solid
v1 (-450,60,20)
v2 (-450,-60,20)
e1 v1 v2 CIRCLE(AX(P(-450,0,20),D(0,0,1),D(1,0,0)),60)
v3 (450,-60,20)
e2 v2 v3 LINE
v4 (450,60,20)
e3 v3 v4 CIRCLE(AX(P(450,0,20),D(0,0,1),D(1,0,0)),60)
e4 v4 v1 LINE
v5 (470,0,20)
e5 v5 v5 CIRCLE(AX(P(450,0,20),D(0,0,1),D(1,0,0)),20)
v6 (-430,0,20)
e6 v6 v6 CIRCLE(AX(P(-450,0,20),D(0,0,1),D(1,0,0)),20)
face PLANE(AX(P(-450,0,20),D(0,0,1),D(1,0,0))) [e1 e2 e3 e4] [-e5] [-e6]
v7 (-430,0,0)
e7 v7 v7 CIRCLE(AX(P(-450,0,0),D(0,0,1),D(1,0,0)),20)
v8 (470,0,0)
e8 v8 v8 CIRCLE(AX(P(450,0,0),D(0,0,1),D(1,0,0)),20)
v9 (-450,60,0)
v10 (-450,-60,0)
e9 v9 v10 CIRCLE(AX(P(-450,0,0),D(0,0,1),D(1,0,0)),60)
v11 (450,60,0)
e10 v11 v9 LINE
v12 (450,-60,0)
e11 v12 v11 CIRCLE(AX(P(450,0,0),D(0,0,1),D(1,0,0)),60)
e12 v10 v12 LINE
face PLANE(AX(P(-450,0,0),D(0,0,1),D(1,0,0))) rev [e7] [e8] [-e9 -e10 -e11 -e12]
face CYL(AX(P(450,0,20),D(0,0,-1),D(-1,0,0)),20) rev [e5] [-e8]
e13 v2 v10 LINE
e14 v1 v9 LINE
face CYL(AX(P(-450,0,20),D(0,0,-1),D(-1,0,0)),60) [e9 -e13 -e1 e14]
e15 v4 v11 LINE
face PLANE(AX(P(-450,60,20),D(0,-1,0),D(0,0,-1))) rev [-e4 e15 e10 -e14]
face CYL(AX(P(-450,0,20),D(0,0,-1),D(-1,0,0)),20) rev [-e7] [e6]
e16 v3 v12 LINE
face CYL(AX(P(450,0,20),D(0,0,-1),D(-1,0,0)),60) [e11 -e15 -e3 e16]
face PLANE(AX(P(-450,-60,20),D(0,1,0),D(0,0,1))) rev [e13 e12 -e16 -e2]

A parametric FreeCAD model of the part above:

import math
import FreeCAD as App
import Part
import Sketcher

V = App.Vector

doc = App.newDocument("Part")
body = doc.addObject("PartDesign::Body", "Body")

# Sketch on XY plane
sketch1 = doc.addObject("Sketcher::SketchObject", "Sketch")
body.addObject(sketch1)
sketch1.AttachmentSupport = (doc.XY_Plane, [""])
sketch1.MapMode = "FlatFace"
sketch1.addGeometry(Part.LineSegment(V(450, 60, 0), V(-450, 60, 0)), False)
sketch1.addGeometry(Part.ArcOfCircle(Part.Circle(V(-450, 0, 0), V(0, 0, 1), 60), math.radians(90), math.radians(270)), False)
sketch1.addGeometry(Part.LineSegment(V(-450, -60, 0), V(450, -60, 0)), False)
sketch1.addGeometry(Part.ArcOfCircle(Part.Circle(V(450, 0, 0), V(0, 0, 1), 60), math.radians(-90), math.radians(90)), False)
sketch1.addGeometry(Part.Circle(V(450, 0, 0), V(0, 0, 1), 20), False)
sketch1.addGeometry(Part.Circle(V(-450, 0, 0), V(0, 0, 1), 20), False)
sketch1.addConstraint(Sketcher.Constraint("Tangent", 0, 2, 1, 1))
sketch1.addConstraint(Sketcher.Constraint("Tangent", 1, 2, 2, 1))
sketch1.addConstraint(Sketcher.Constraint("Tangent", 2, 2, 3, 1))
sketch1.addConstraint(Sketcher.Constraint("Tangent", 3, 2, 0, 1))
sketch1.addConstraint(Sketcher.Constraint("Horizontal", 0))
sketch1.addConstraint(Sketcher.Constraint("Horizontal", 2))
sketch1.addConstraint(Sketcher.Constraint("Coincident", 4, 3, 3, 3))
sketch1.addConstraint(Sketcher.Constraint("Coincident", 5, 3, 1, 3))
sketch1.addConstraint(Sketcher.Constraint("Equal", 4, 5))
sketch1.addConstraint(Sketcher.Constraint("Symmetric", 1, 3, 3, 3, -1, 1))
sketch1.addConstraint(Sketcher.Constraint("Diameter", 4, 40.0))
sketch1.addConstraint(Sketcher.Constraint("Radius", 1, 60.0))
sketch1.addConstraint(Sketcher.Constraint("DistanceX", 0, 2, 0, 1, 900.0))
pad1 = doc.addObject("PartDesign::Pad", "Pad")
body.addObject(pad1)
pad1.Profile = sketch1
pad1.Length = 20

doc.recompute()
